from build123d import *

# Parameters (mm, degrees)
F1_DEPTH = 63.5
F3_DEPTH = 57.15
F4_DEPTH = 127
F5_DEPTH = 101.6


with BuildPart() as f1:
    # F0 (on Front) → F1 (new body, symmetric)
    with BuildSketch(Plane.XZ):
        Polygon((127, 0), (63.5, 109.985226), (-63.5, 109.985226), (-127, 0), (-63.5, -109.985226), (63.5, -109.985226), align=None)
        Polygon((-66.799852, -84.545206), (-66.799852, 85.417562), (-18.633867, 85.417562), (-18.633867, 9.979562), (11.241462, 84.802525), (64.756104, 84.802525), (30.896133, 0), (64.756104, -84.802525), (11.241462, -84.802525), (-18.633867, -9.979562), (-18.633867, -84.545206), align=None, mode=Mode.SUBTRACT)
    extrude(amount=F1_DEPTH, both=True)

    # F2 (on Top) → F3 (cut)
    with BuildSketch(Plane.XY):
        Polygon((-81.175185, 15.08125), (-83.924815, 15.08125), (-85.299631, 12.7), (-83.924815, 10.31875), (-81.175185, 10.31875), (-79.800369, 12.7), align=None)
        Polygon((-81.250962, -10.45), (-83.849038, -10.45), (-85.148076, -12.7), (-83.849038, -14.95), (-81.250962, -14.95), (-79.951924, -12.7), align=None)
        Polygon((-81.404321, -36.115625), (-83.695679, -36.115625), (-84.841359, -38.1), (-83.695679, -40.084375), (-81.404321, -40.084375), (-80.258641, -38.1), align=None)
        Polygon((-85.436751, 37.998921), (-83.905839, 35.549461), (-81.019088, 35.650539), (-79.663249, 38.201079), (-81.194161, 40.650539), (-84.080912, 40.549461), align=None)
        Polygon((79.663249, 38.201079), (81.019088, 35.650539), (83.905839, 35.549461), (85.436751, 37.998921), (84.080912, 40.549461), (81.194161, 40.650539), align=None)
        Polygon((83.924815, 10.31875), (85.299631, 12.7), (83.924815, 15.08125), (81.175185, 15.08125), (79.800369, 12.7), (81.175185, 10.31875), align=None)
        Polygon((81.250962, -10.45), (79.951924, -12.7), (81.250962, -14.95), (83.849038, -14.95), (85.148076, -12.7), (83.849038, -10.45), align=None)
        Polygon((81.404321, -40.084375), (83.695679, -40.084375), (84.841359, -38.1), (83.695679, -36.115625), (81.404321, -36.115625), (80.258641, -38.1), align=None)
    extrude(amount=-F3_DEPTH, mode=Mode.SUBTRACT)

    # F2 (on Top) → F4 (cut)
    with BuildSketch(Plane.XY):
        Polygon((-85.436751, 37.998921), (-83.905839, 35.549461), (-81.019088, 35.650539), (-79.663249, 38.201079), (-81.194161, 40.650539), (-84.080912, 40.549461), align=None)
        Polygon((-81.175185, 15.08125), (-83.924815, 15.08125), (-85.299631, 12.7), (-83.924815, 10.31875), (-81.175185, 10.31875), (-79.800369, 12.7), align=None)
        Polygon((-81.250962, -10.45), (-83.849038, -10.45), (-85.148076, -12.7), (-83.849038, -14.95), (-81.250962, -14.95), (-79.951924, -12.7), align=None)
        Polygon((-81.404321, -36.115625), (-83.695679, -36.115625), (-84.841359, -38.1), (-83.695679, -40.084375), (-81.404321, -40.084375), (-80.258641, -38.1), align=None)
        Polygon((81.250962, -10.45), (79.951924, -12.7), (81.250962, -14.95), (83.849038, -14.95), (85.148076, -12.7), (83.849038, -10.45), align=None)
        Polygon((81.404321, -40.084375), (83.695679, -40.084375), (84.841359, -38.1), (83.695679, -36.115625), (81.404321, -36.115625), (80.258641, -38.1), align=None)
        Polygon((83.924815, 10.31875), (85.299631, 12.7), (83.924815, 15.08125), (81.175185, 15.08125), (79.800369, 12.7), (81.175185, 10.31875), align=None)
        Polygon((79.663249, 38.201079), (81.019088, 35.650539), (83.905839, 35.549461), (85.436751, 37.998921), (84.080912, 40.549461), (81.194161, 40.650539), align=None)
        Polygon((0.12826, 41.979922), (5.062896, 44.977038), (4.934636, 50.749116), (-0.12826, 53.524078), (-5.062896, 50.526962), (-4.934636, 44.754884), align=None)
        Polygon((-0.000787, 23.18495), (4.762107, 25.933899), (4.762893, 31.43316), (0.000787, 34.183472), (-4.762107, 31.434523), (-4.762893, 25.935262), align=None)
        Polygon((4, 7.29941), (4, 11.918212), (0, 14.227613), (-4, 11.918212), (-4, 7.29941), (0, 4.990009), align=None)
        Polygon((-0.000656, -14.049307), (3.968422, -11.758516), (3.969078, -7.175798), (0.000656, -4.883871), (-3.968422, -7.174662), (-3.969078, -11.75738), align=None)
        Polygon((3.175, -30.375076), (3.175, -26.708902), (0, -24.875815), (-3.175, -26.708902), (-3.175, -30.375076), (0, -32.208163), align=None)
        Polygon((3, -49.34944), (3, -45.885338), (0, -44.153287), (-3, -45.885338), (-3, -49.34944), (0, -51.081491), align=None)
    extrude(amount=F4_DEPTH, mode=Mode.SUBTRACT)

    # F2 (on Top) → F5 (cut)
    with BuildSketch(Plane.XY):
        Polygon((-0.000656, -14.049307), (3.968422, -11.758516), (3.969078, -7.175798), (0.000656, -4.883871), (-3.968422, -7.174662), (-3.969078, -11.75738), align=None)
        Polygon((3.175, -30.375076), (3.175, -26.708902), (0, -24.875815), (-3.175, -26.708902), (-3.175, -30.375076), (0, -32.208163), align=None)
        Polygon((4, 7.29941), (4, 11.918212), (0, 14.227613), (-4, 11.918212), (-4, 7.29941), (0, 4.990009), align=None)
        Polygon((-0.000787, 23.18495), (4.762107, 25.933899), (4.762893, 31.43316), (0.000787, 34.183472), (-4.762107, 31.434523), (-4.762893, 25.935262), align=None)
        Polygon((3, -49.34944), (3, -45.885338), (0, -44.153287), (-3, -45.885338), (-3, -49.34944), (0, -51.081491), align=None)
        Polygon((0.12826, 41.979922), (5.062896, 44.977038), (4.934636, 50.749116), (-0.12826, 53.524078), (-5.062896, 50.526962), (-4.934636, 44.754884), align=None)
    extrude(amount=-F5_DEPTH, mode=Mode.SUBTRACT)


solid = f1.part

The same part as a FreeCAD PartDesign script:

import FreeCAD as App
import Part
import Sketcher

V = App.Vector
Q = App.Units.Quantity

doc = App.newDocument("Part")
params = doc.addObject("Spreadsheet::Sheet", "Params")
for row, (alias, value) in enumerate([
    ("sketch1_width", "5 in"),
    ("sketch1_length", "5 in"),
    ("sketch1_height", "2.97 in"),
    ("pad1_length", "5 in"),
    ("pocket1_length", "2.25 in"),
    ("pocket2_length", "5 in"),
    ("pocket3_length", "4 in"),
], start=1):
    params.set(f"A{row}", alias)
    params.set(f"B{row}", "=" + value)
    params.setAlias(f"B{row}", alias)

body = doc.addObject("PartDesign::Body", "Body")

sketch1 = body.newObject("Sketcher::SketchObject", "Sketch")
sketch1.AttachmentSupport = (doc.getObject("XZ_Plane"), [""])
sketch1.MapMode = "FlatFace"
sketch1.addGeometry([
    Part.LineSegment(V(127, 0, 0), V(64, 110, 0)),
    Part.LineSegment(V(64, 110, 0), V(-64, 110, 0)),
    Part.LineSegment(V(-64, 110, 0), V(-127, 0, 0)),
    Part.LineSegment(V(-127, 0, 0), V(-64, -110, 0)),
    Part.LineSegment(V(-64, -110, 0), V(64, -110, 0)),
    Part.LineSegment(V(64, -110, 0), V(127, 0, 0)),
    Part.LineSegment(V(-19, -85, 0), V(-67, -85, 0)),
    Part.LineSegment(V(-67, -85, 0), V(-67, 85, 0)),
    Part.LineSegment(V(-67, 85, 0), V(-19, 85, 0)),
    Part.LineSegment(V(-19, 85, 0), V(-19, 10, 0)),
    Part.LineSegment(V(-19, 10, 0), V(11, 85, 0)),
    Part.LineSegment(V(11, 85, 0), V(65, 85, 0)),
    Part.LineSegment(V(65, 85, 0), V(31, 0, 0)),
    Part.LineSegment(V(31, 0, 0), V(65, -85, 0)),
    Part.LineSegment(V(65, -85, 0), V(11, -85, 0)),
    Part.LineSegment(V(11, -85, 0), V(-19, -10, 0)),
    Part.LineSegment(V(-19, -10, 0), V(-19, -85, 0)),
], False)
sketch1.addConstraint([
    Sketcher.Constraint("Coincident", 0, 2, 1, 1),
    Sketcher.Constraint("Coincident", 1, 2, 2, 1),
    Sketcher.Constraint("Coincident", 2, 2, 3, 1),
    Sketcher.Constraint("Coincident", 3, 2, 4, 1),
    Sketcher.Constraint("Coincident", 4, 2, 5, 1),
    Sketcher.Constraint("Coincident", 5, 2, 0, 1),
    Sketcher.Constraint("Coincident", 6, 2, 7, 1),
    Sketcher.Constraint("Coincident", 7, 2, 8, 1),
    Sketcher.Constraint("Coincident", 8, 2, 9, 1),
    Sketcher.Constraint("Coincident", 9, 2, 10, 1),
    Sketcher.Constraint("Coincident", 10, 2, 11, 1),
    Sketcher.Constraint("Coincident", 11, 2, 12, 1),
    Sketcher.Constraint("Coincident", 12, 2, 13, 1),
    Sketcher.Constraint("Coincident", 13, 2, 14, 1),
    Sketcher.Constraint("Coincident", 14, 2, 15, 1),
    Sketcher.Constraint("Coincident", 15, 2, 16, 1),
    Sketcher.Constraint("Coincident", 16, 2, 6, 1),
    Sketcher.Constraint("Horizontal", 1),
    Sketcher.Constraint("Horizontal", 4),
    Sketcher.Constraint("Horizontal", 6),
    Sketcher.Constraint("Vertical", 7),
    Sketcher.Constraint("Horizontal", 8),
    Sketcher.Constraint("Vertical", 9),
    Sketcher.Constraint("Horizontal", 11),
    Sketcher.Constraint("Horizontal", 14),
    Sketcher.Constraint("Vertical", 16),
    Sketcher.Constraint("Symmetric", 0, 2, 3, 2, -1, 1),
    Sketcher.Constraint("Symmetric", 2, 2, 5, 2, -1, 1),
    Sketcher.Constraint("Symmetric", 11, 2, 13, 2, -1),
    Sketcher.Constraint("Symmetric", 9, 2, 15, 2, -1),
    Sketcher.Constraint("PointOnObject", 2, 2, -1),
    Sketcher.Constraint("PointOnObject", 12, 2, -1),
    Sketcher.Constraint("Parallel", 2, 5),
    Sketcher.Constraint("Parallel", 10, 12),
    Sketcher.Constraint("Parallel", 13, 15),
    Sketcher.Constraint("Vertical", 1, 2, 3, 2),
    Sketcher.Constraint("DistanceX", 1, 2, 1, 1, Q("5 in")),
    Sketcher.Constraint("Distance", 0, Q("5 in")),
    Sketcher.Constraint("DistanceX", 2, 2, -1, 1, Q("5 in")),
    Sketcher.Constraint("DistanceY", 9, 2, 9, 1, Q("2.97 in")),
    Sketcher.Constraint("DistanceX", 9, 2, 12, 2, Q("1.95 in")),
    Sketcher.Constraint("DistanceX", 11, 1, 11, 2, 53.514642),
    Sketcher.Constraint("DistanceY", 10, 2, 0, 2, 25.182701),
    Sketcher.Constraint("Distance", 10, 80.566811),
    Sketcher.Constraint("DistanceX", 6, 2, 6, 1, 48.165985),
    Sketcher.Constraint("DistanceY", 7, 1, 7, 2, 169.962768),
    Sketcher.Constraint("DistanceX", 6, 2, -1, 1, 66.799852),
])
sketch1.setExpression("Constraints[36]", "Params.sketch1_width")
sketch1.setExpression("Constraints[37]", "Params.sketch1_length")
sketch1.setExpression("Constraints[39]", "Params.sketch1_height")
pad1 = body.newObject("PartDesign::Pad", "Pad")
pad1.Profile = sketch1
pad1.setExpression("Length", "Params.pad1_length")
pad1.Midplane = True

sketch2 = body.newObject("Sketcher::SketchObject", "Sketch001")
sketch2.AttachmentSupport = (doc.getObject("XY_Plane"), [""])
sketch2.MapMode = "FlatFace"
sketch2.addGeometry([
    Part.LineSegment(V(-81.2, 15.1, 0), V(-83.9, 15.1, 0)),
    Part.LineSegment(V(-83.9, 15.1, 0), V(-85.3, 12.7, 0)),
    Part.LineSegment(V(-85.3, 12.7, 0), V(-83.9, 10.3, 0)),
    Part.LineSegment(V(-83.9, 10.3, 0), V(-81.2, 10.3, 0)),
    Part.LineSegment(V(-81.2, 10.3, 0), V(-79.8, 12.7, 0)),
    Part.LineSegment(V(-79.8, 12.7, 0), V(-81.2, 15.1, 0)),
    Part.LineSegment(V(-81.3, -10.4, 0), V(-83.8, -10.4, 0)),
    Part.LineSegment(V(-83.8, -10.4, 0), V(-85.1, -12.7, 0)),
    Part.LineSegment(V(-85.1, -12.7, 0), V(-83.8, -14.9, 0)),
    Part.LineSegment(V(-83.8, -14.9, 0), V(-81.3, -14.9, 0)),
    Part.LineSegment(V(-81.3, -14.9, 0), V(-80, -12.7, 0)),
    Part.LineSegment(V(-80, -12.7, 0), V(-81.3, -10.4, 0)),
    Part.LineSegment(V(-81.4, -36.1, 0), V(-83.7, -36.1, 0)),
    Part.LineSegment(V(-83.7, -36.1, 0), V(-84.8, -38.1, 0)),
    Part.LineSegment(V(-84.8, -38.1, 0), V(-83.7, -40.1, 0)),
    Part.LineSegment(V(-83.7, -40.1, 0), V(-81.4, -40.1, 0)),
    Part.LineSegment(V(-81.4, -40.1, 0), V(-80.3, -38.1, 0)),
    Part.LineSegment(V(-80.3, -38.1, 0), V(-81.4, -36.1, 0)),
    Part.LineSegment(V(-85.4, 38, 0), V(-83.9, 35.5, 0)),
    Part.LineSegment(V(-83.9, 35.5, 0), V(-81, 35.7, 0)),
    Part.LineSegment(V(-81, 35.7, 0), V(-79.7, 38.2, 0)),
    Part.LineSegment(V(-79.7, 38.2, 0), V(-81.2, 40.7, 0)),
    Part.LineSegment(V(-81.2, 40.7, 0), V(-84.1, 40.5, 0)),
    Part.LineSegment(V(-84.1, 40.5, 0), V(-85.4, 38, 0)),
    Part.LineSegment(V(79.7, 38.2, 0), V(81, 35.7, 0)),
    Part.LineSegment(V(81, 35.7, 0), V(83.9, 35.5, 0)),
    Part.LineSegment(V(83.9, 35.5, 0), V(85.4, 38, 0)),
    Part.LineSegment(V(85.4, 38, 0), V(84.1, 40.5, 0)),
    Part.LineSegment(V(84.1, 40.5, 0), V(81.2, 40.7, 0)),
    Part.LineSegment(V(81.2, 40.7, 0), V(79.7, 38.2, 0)),
    Part.LineSegment(V(83.9, 10.3, 0), V(85.3, 12.7, 0)),
    Part.LineSegment(V(85.3, 12.7, 0), V(83.9, 15.1, 0)),
    Part.LineSegment(V(83.9, 15.1, 0), V(81.2, 15.1, 0)),
    Part.LineSegment(V(81.2, 15.1, 0), V(79.8, 12.7, 0)),
    Part.LineSegment(V(79.8, 12.7, 0), V(81.2, 10.3, 0)),
    Part.LineSegment(V(81.2, 10.3, 0), V(83.9, 10.3, 0)),
    Part.LineSegment(V(81.3, -10.4, 0), V(80, -12.7, 0)),
    Part.LineSegment(V(80, -12.7, 0), V(81.3, -14.9, 0)),
    Part.LineSegment(V(81.3, -14.9, 0), V(83.8, -14.9, 0)),
    Part.LineSegment(V(83.8, -14.9, 0), V(85.1, -12.7, 0)),
    Part.LineSegment(V(85.1, -12.7, 0), V(83.8, -10.4, 0)),
    Part.LineSegment(V(83.8, -10.4, 0), V(81.3, -10.4, 0)),
    Part.LineSegment(V(81.4, -40.1, 0), V(83.7, -40.1, 0)),
    Part.LineSegment(V(83.7, -40.1, 0), V(84.8, -38.1, 0)),
    Part.LineSegment(V(84.8, -38.1, 0), V(83.7, -36.1, 0)),
    Part.LineSegment(V(83.7, -36.1, 0), V(81.4, -36.1, 0)),
    Part.LineSegment(V(81.4, -36.1, 0), V(80.3, -38.1, 0)),
    Part.LineSegment(V(80.3, -38.1, 0), V(81.4, -40.1, 0)),
], False)
sketch2.addConstraint([
    Sketcher.Constraint("Coincident", 0, 2, 1, 1),
    Sketcher.Constraint("Coincident", 1, 2, 2, 1),
    Sketcher.Constraint("Coincident", 2, 2, 3, 1),
    Sketcher.Constraint("Coincident", 3, 2, 4, 1),
    Sketcher.Constraint("Coincident", 4, 2, 5, 1),
    Sketcher.Constraint("Coincident", 5, 2, 0, 1),
    Sketcher.Constraint("Coincident", 6, 2, 7, 1),
    Sketcher.Constraint("Coincident", 7, 2, 8, 1),
    Sketcher.Constraint("Coincident", 8, 2, 9, 1),
    Sketcher.Constraint("Coincident", 9, 2, 10, 1),
    Sketcher.Constraint("Coincident", 10, 2, 11, 1),
    Sketcher.Constraint("Coincident", 11, 2, 6, 1),
    Sketcher.Constraint("Coincident", 12, 2, 13, 1),
    Sketcher.Constraint("Coincident", 13, 2, 14, 1),
    Sketcher.Constraint("Coincident", 14, 2, 15, 1),
    Sketcher.Constraint("Coincident", 15, 2, 16, 1),
    Sketcher.Constraint("Coincident", 16, 2, 17, 1),
    Sketcher.Constraint("Coincident", 17, 2, 12, 1),
    Sketcher.Constraint("Coincident", 18, 2, 19, 1),
    Sketcher.Constraint("Coincident", 19, 2, 20, 1),
    Sketcher.Constraint("Coincident", 20, 2, 21, 1),
    Sketcher.Constraint("Coincident", 21, 2, 22, 1),
    Sketcher.Constraint("Coincident", 22, 2, 23, 1),
    Sketcher.Constraint("Coincident", 23, 2, 18, 1),
    Sketcher.Constraint("Coincident", 24, 2, 25, 1),
    Sketcher.Constraint("Coincident", 25, 2, 26, 1),
    Sketcher.Constraint("Coincident", 26, 2, 27, 1),
    Sketcher.Constraint("Coincident", 27, 2, 28, 1),
    Sketcher.Constraint("Coincident", 28, 2, 29, 1),
    Sketcher.Constraint("Coincident", 29, 2, 24, 1),
    Sketcher.Constraint("Coincident", 30, 2, 31, 1),
    Sketcher.Constraint("Coincident", 31, 2, 32, 1),
    Sketcher.Constraint("Coincident", 32, 2, 33, 1),
    Sketcher.Constraint("Coincident", 33, 2, 34, 1),
    Sketcher.Constraint("Coincident", 34, 2, 35, 1),
    Sketcher.Constraint("Coincident", 35, 2, 30, 1),
    Sketcher.Constraint("Coincident", 36, 2, 37, 1),
    Sketcher.Constraint("Coincident", 37, 2, 38, 1),
    Sketcher.Constraint("Coincident", 38, 2, 39, 1),
    Sketcher.Constraint("Coincident", 39, 2, 40, 1),
    Sketcher.Constraint("Coincident", 40, 2, 41, 1),
    Sketcher.Constraint("Coincident", 41, 2, 36, 1),
    Sketcher.Constraint("Coincident", 42, 2, 43, 1),
    Sketcher.Constraint("Coincident", 43, 2, 44, 1),
    Sketcher.Constraint("Coincident", 44, 2, 45, 1),
    Sketcher.Constraint("Coincident", 45, 2, 46, 1),
    Sketcher.Constraint("Coincident", 46, 2, 47, 1),
    Sketcher.Constraint("Coincident", 47, 2, 42, 1),
    Sketcher.Constraint("Horizontal", 0),
    Sketcher.Constraint("Horizontal", 3),
    Sketcher.Constraint("Horizontal", 6),
    Sketcher.Constraint("Horizontal", 9),
    Sketcher.Constraint("Horizontal", 12),
    Sketcher.Constraint("Horizontal", 15),
    Sketcher.Constraint("Horizontal", 32),
    Sketcher.Constraint("Horizontal", 35),
    Sketcher.Constraint("Horizontal", 38),
    Sketcher.Constraint("Horizontal", 41),
    Sketcher.Constraint("Horizontal", 42),
    Sketcher.Constraint("Horizontal", 45),
    Sketcher.Constraint("Symmetric", 19, 2, 24, 2, -2),
    Sketcher.Constraint("Symmetric", 18, 2, 25, 2, -2),
    Sketcher.Constraint("Symmetric", 23, 2, 26, 2, -2),
    Sketcher.Constraint("Symmetric", 22, 2, 27, 2, -2),
    Sketcher.Constraint("Symmetric", 21, 2, 28, 2, -2),
    Sketcher.Constraint("Symmetric", 20, 2, 29, 2, -2),
    Sketcher.Constraint("Symmetric", 1, 2, 30, 2, -2),
    Sketcher.Constraint("Symmetric", 0, 2, 31, 2, -2),
    Sketcher.Constraint("Symmetric", 4, 2, 33, 2, -2),
    Sketcher.Constraint("Symmetric", 3, 2, 34, 2, -2),
    Sketcher.Constraint("Symmetric", 10, 2, 36, 2, -2),
    Sketcher.Constraint("Symmetric", 9, 2, 37, 2, -2),
    Sketcher.Constraint("Symmetric", 7, 2, 39, 2, -2),
    Sketcher.Constraint("Symmetric", 6, 2, 40, 2, -2),
    Sketcher.Constraint("Symmetric", 14, 2, 42, 2, -2),
    Sketcher.Constraint("Symmetric", 13, 2, 43, 2, -2),
    Sketcher.Constraint("Symmetric", 12, 2, 44, 2, -2),
    Sketcher.Constraint("Symmetric", 16, 2, 46, 2, -2),
    Sketcher.Constraint("Parallel", 1, 4),
    Sketcher.Constraint("Parallel", 2, 5),
    Sketcher.Constraint("Parallel", 4, 7),
    Sketcher.Constraint("Parallel", 5, 8),
    Sketcher.Constraint("Parallel", 7, 10),
    Sketcher.Constraint("Parallel", 8, 11),
    Sketcher.Constraint("Parallel", 10, 13),
    Sketcher.Constraint("Parallel", 11, 14),
    Sketcher.Constraint("Parallel", 13, 16),
    Sketcher.Constraint("Parallel", 14, 17),
    Sketcher.Constraint("Parallel", 18, 21),
    Sketcher.Constraint("Parallel", 19, 22),
    Sketcher.Constraint("Parallel", 20, 23),
    Sketcher.Constraint("Parallel", 16, 30),
    Sketcher.Constraint("Parallel", 17, 31),
    Sketcher.Constraint("Parallel", 30, 33),
    Sketcher.Constraint("Parallel", 33, 36),
    Sketcher.Constraint("Parallel", 36, 39),
    Sketcher.Constraint("Parallel", 43, 46),
    Sketcher.Constraint("Parallel", 44, 47),
    Sketcher.Constraint("Horizontal", 1, 2, 4, 2),
    Sketcher.Constraint("Horizontal", 7, 2, 10, 2),
    Sketcher.Constraint("Horizontal", 13, 2, 16, 2),
    Sketcher.Constraint("Vertical", 0, 2, 2, 2),
    Sketcher.Constraint("Vertical", 6, 2, 8, 2),
    Sketcher.Constraint("Vertical", 12, 2, 14, 2),
    Sketcher.Constraint("Equal", 18, 19),
    Sketcher.Constraint("Equal", 19, 20),
    Sketcher.Constraint("Equal", 20, 21),
    Sketcher.Constraint("Angle", 1, Q("-120.000012 deg")),
    Sketcher.Constraint("DistanceY", 7, 2, 1, 2, Q("1 in")),
    Sketcher.Constraint("DistanceY", 13, 2, 7, 2, Q("1 in")),
    Sketcher.Constraint("DistanceY", -1, 1, 1, 2, Q("0.5 in")),
    Sketcher.Constraint("DistanceX", 21, 2, 25, 2, Q("6.5 in")),
    Sketcher.Constraint("DistanceY", -1, 1, 0, 2, Q("0.59375 in")),
    Sketcher.Constraint("DistanceY", 12, 2, -1, 1, Q("1.421875 in")),
    Sketcher.Constraint("DistanceX", 0, 2, 0, 1, 2.74963),
    Sketcher.Constraint("DistanceX", 12, 2, 12, 1, 2.291358),
    Sketcher.Constraint("DistanceY", 6, 2, -1, 1, 10.45),
    Sketcher.Constraint("DistanceY", 19, 2, 21, 2, 5.0),
    Sketcher.Constraint("Distance", 18, 2.88852),
    Sketcher.Constraint("DistanceX", 6, 2, 6, 1, 2.598076),
    Sketcher.Constraint("DistanceX", 1, 2, -1, 1, 85.299631),
    Sketcher.Constraint("DistanceX", 9, 2, -1, 1, 81.250962),
    Sketcher.Constraint("DistanceX", 12, 2, -1, 1, 83.695679),
    Sketcher.Constraint("DistanceX", 18, 2, -1, 1, 83.905839),
    Sketcher.Constraint("DistanceY", -1, 1, 18, 2, 35.549461),
    Sketcher.Constraint("DistanceY", -1, 1, 19, 2, 35.650539),
])
pocket1 = body.newObject("PartDesign::Pocket", "Pocket")
pocket1.Profile = sketch2
pocket1.setExpression("Length", "Params.pocket1_length")

sketch3 = body.newObject("Sketcher::SketchObject", "Sketch002")
sketch3.AttachmentSupport = (doc.getObject("XY_Plane"), [""])
sketch3.MapMode = "FlatFace"
sketch3.addGeometry([
    Part.LineSegment(V(-85.4, 38, 0), V(-83.9, 35.5, 0)),
    Part.LineSegment(V(-83.9, 35.5, 0), V(-81, 35.7, 0)),
    Part.LineSegment(V(-81, 35.7, 0), V(-79.7, 38.2, 0)),
    Part.LineSegment(V(-79.7, 38.2, 0), V(-81.2, 40.7, 0)),
    Part.LineSegment(V(-81.2, 40.7, 0), V(-84.1, 40.5, 0)),
    Part.LineSegment(V(-84.1, 40.5, 0), V(-85.4, 38, 0)),
    Part.LineSegment(V(-81.2, 15.1, 0), V(-83.9, 15.1, 0)),
    Part.LineSegment(V(-83.9, 15.1, 0), V(-85.3, 12.7, 0)),
    Part.LineSegment(V(-85.3, 12.7, 0), V(-83.9, 10.3, 0)),
    Part.LineSegment(V(-83.9, 10.3, 0), V(-81.2, 10.3, 0)),
    Part.LineSegment(V(-81.2, 10.3, 0), V(-79.8, 12.7, 0)),
    Part.LineSegment(V(-79.8, 12.7, 0), V(-81.2, 15.1, 0)),
    Part.LineSegment(V(-81.3, -10.4, 0), V(-83.8, -10.4, 0)),
    Part.LineSegment(V(-83.8, -10.4, 0), V(-85.1, -12.7, 0)),
    Part.LineSegment(V(-85.1, -12.7, 0), V(-83.8, -14.9, 0)),
    Part.LineSegment(V(-83.8, -14.9, 0), V(-81.3, -14.9, 0)),
    Part.LineSegment(V(-81.3, -14.9, 0), V(-80, -12.7, 0)),
    Part.LineSegment(V(-80, -12.7, 0), V(-81.3, -10.4, 0)),
    Part.LineSegment(V(-81.4, -36.1, 0), V(-83.7, -36.1, 0)),
    Part.LineSegment(V(-83.7, -36.1, 0), V(-84.8, -38.1, 0)),
    Part.LineSegment(V(-84.8, -38.1, 0), V(-83.7, -40.1, 0)),
    Part.LineSegment(V(-83.7, -40.1, 0), V(-81.4, -40.1, 0)),
    Part.LineSegment(V(-81.4, -40.1, 0), V(-80.3, -38.1, 0)),
    Part.LineSegment(V(-80.3, -38.1, 0), V(-81.4, -36.1, 0)),
    Part.LineSegment(V(81.3, -10.4, 0), V(80, -12.7, 0)),
    Part.LineSegment(V(80, -12.7, 0), V(81.3, -14.9, 0)),
    Part.LineSegment(V(81.3, -14.9, 0), V(83.8, -14.9, 0)),
    Part.LineSegment(V(83.8, -14.9, 0), V(85.1, -12.7, 0)),
    Part.LineSegment(V(85.1, -12.7, 0), V(83.8, -10.4, 0)),
    Part.LineSegment(V(83.8, -10.4, 0), V(81.3, -10.4, 0)),
    Part.LineSegment(V(81.4, -40.1, 0), V(83.7, -40.1, 0)),
    Part.LineSegment(V(83.7, -40.1, 0), V(84.8, -38.1, 0)),
    Part.LineSegment(V(84.8, -38.1, 0), V(83.7, -36.1, 0)),
    Part.LineSegment(V(83.7, -36.1, 0), V(81.4, -36.1, 0)),
    Part.LineSegment(V(81.4, -36.1, 0), V(80.3, -38.1, 0)),
    Part.LineSegment(V(80.3, -38.1, 0), V(81.4, -40.1, 0)),
    Part.LineSegment(V(83.9, 10.3, 0), V(85.3, 12.7, 0)),
    Part.LineSegment(V(85.3, 12.7, 0), V(83.9, 15.1, 0)),
    Part.LineSegment(V(83.9, 15.1, 0), V(81.2, 15.1, 0)),
    Part.LineSegment(V(81.2, 15.1, 0), V(79.8, 12.7, 0)),
    Part.LineSegment(V(79.8, 12.7, 0), V(81.2, 10.3, 0)),
    Part.LineSegment(V(81.2, 10.3, 0), V(83.9, 10.3, 0)),
    Part.LineSegment(V(79.7, 38.2, 0), V(81, 35.7, 0)),
    Part.LineSegment(V(81, 35.7, 0), V(83.9, 35.5, 0)),
    Part.LineSegment(V(83.9, 35.5, 0), V(85.4, 38, 0)),
    Part.LineSegment(V(85.4, 38, 0), V(84.1, 40.5, 0)),
    Part.LineSegment(V(84.1, 40.5, 0), V(81.2, 40.7, 0)),
    Part.LineSegment(V(81.2, 40.7, 0), V(79.7, 38.2, 0)),
    Part.LineSegment(V(0.1, 42, 0), V(5.1, 45, 0)),
    Part.LineSegment(V(5.1, 45, 0), V(4.9, 50.7, 0)),
    Part.LineSegment(V(4.9, 50.7, 0), V(-0.1, 53.5, 0)),
    Part.LineSegment(V(-0.1, 53.5, 0), V(-5.1, 50.5, 0)),
    Part.LineSegment(V(-5.1, 50.5, 0), V(-4.9, 44.8, 0)),
    Part.LineSegment(V(-4.9, 44.8, 0), V(0.1, 42, 0)),
    Part.LineSegment(V(0, 23.2, 0), V(4.8, 25.9, 0)),
    Part.LineSegment(V(4.8, 25.9, 0), V(4.8, 31.4, 0)),
    Part.LineSegment(V(4.8, 31.4, 0), V(0, 34.2, 0)),
    Part.LineSegment(V(0, 34.2, 0), V(-4.8, 31.4, 0)),
    Part.LineSegment(V(-4.8, 31.4, 0), V(-4.8, 25.9, 0)),
    Part.LineSegment(V(-4.8, 25.9, 0), V(0, 23.2, 0)),
    Part.LineSegment(V(4, 7.3, 0), V(4, 11.9, 0)),
    Part.LineSegment(V(4, 11.9, 0), V(0, 14.2, 0)),
    Part.LineSegment(V(0, 14.2, 0), V(-4, 11.9, 0)),
    Part.LineSegment(V(-4, 11.9, 0), V(-4, 7.3, 0)),
    Part.LineSegment(V(-4, 7.3, 0), V(0, 5, 0)),
    Part.LineSegment(V(0, 5, 0), V(4, 7.3, 0)),
    Part.LineSegment(V(0, -14, 0), V(4, -11.8, 0)),
    Part.LineSegment(V(4, -11.8, 0), V(4, -7.2, 0)),
    Part.LineSegment(V(4, -7.2, 0), V(0, -4.9, 0)),
    Part.LineSegment(V(0, -4.9, 0), V(-4, -7.2, 0)),
    Part.LineSegment(V(-4, -7.2, 0), V(-4, -11.8, 0)),
    Part.LineSegment(V(-4, -11.8, 0), V(0, -14, 0)),
    Part.LineSegment(V(3.2, -30.4, 0), V(3.2, -26.7, 0)),
    Part.LineSegment(V(3.2, -26.7, 0), V(0, -24.9, 0)),
    Part.LineSegment(V(0, -24.9, 0), V(-3.2, -26.7, 0)),
    Part.LineSegment(V(-3.2, -26.7, 0), V(-3.2, -30.4, 0)),
    Part.LineSegment(V(-3.2, -30.4, 0), V(0, -32.2, 0)),
    Part.LineSegment(V(0, -32.2, 0), V(3.2, -30.4, 0)),
    Part.LineSegment(V(3, -49.3, 0), V(3, -45.9, 0)),
    Part.LineSegment(V(3, -45.9, 0), V(0, -44.2, 0)),
    Part.LineSegment(V(0, -44.2, 0), V(-3, -45.9, 0)),
    Part.LineSegment(V(-3, -45.9, 0), V(-3, -49.3, 0)),
    Part.LineSegment(V(-3, -49.3, 0), V(0, -51.1, 0)),
    Part.LineSegment(V(0, -51.1, 0), V(3, -49.3, 0)),
], False)
sketch3.addConstraint([
    Sketcher.Constraint("Coincident", 0, 2, 1, 1),
    Sketcher.Constraint("Coincident", 1, 2, 2, 1),
    Sketcher.Constraint("Coincident", 2, 2, 3, 1),
    Sketcher.Constraint("Coincident", 3, 2, 4, 1),
    Sketcher.Constraint("Coincident", 4, 2, 5, 1),
    Sketcher.Constraint("Coincident", 5, 2, 0, 1),
    Sketcher.Constraint("Coincident", 6, 2, 7, 1),
    Sketcher.Constraint("Coincident", 7, 2, 8, 1),
    Sketcher.Constraint("Coincident", 8, 2, 9, 1),
    Sketcher.Constraint("Coincident", 9, 2, 10, 1),
    Sketcher.Constraint("Coincident", 10, 2, 11, 1),
    Sketcher.Constraint("Coincident", 11, 2, 6, 1),
    Sketcher.Constraint("Coincident", 12, 2, 13, 1),
    Sketcher.Constraint("Coincident", 13, 2, 14, 1),
    Sketcher.Constraint("Coincident", 14, 2, 15, 1),
    Sketcher.Constraint("Coincident", 15, 2, 16, 1),
    Sketcher.Constraint("Coincident", 16, 2, 17, 1),
    Sketcher.Constraint("Coincident", 17, 2, 12, 1),
    Sketcher.Constraint("Coincident", 18, 2, 19, 1),
    Sketcher.Constraint("Coincident", 19, 2, 20, 1),
    Sketcher.Constraint("Coincident", 20, 2, 21, 1),
    Sketcher.Constraint("Coincident", 21, 2, 22, 1),
    Sketcher.Constraint("Coincident", 22, 2, 23, 1),
    Sketcher.Constraint("Coincident", 23, 2, 18, 1),
    Sketcher.Constraint("Coincident", 24, 2, 25, 1),
    Sketcher.Constraint("Coincident", 25, 2, 26, 1),
    Sketcher.Constraint("Coincident", 26, 2, 27, 1),
    Sketcher.Constraint("Coincident", 27, 2, 28, 1),
    Sketcher.Constraint("Coincident", 28, 2, 29, 1),
    Sketcher.Constraint("Coincident", 29, 2, 24, 1),
    Sketcher.Constraint("Coincident", 30, 2, 31, 1),
    Sketcher.Constraint("Coincident", 31, 2, 32, 1),
    Sketcher.Constraint("Coincident", 32, 2, 33, 1),
    Sketcher.Constraint("Coincident", 33, 2, 34, 1),
    Sketcher.Constraint("Coincident", 34, 2, 35, 1),
    Sketcher.Constraint("Coincident", 35, 2, 30, 1),
    Sketcher.Constraint("Coincident", 36, 2, 37, 1),
    Sketcher.Constraint("Coincident", 37, 2, 38, 1),
    Sketcher.Constraint("Coincident", 38, 2, 39, 1),
    Sketcher.Constraint("Coincident", 39, 2, 40, 1),
    Sketcher.Constraint("Coincident", 40, 2, 41, 1),
    Sketcher.Constraint("Coincident", 41, 2, 36, 1),
    Sketcher.Constraint("Coincident", 42, 2, 43, 1),
    Sketcher.Constraint("Coincident", 43, 2, 44, 1),
    Sketcher.Constraint("Coincident", 44, 2, 45, 1),
    Sketcher.Constraint("Coincident", 45, 2, 46, 1),
    Sketcher.Constraint("Coincident", 46, 2, 47, 1),
    Sketcher.Constraint("Coincident", 47, 2, 42, 1),
    Sketcher.Constraint("Coincident", 48, 2, 49, 1),
    Sketcher.Constraint("Coincident", 49, 2, 50, 1),
    Sketcher.Constraint("Coincident", 50, 2, 51, 1),
    Sketcher.Constraint("Coincident", 51, 2, 52, 1),
    Sketcher.Constraint("Coincident", 52, 2, 53, 1),
    Sketcher.Constraint("Coincident", 53, 2, 48, 1),
    Sketcher.Constraint("Coincident", 54, 2, 55, 1),
    Sketcher.Constraint("Coincident", 55, 2, 56, 1),
    Sketcher.Constraint("Coincident", 56, 2, 57, 1),
    Sketcher.Constraint("Coincident", 57, 2, 58, 1),
    Sketcher.Constraint("Coincident", 58, 2, 59, 1),
    Sketcher.Constraint("Coincident", 59, 2, 54, 1),
    Sketcher.Constraint("Coincident", 60, 2, 61, 1),
    Sketcher.Constraint("Coincident", 61, 2, 62, 1),
    Sketcher.Constraint("Coincident", 62, 2, 63, 1),
    Sketcher.Constraint("Coincident", 63, 2, 64, 1),
    Sketcher.Constraint("Coincident", 64, 2, 65, 1),
    Sketcher.Constraint("Coincident", 65, 2, 60, 1),
    Sketcher.Constraint("Coincident", 66, 2, 67, 1),
    Sketcher.Constraint("Coincident", 67, 2, 68, 1),
    Sketcher.Constraint("Coincident", 68, 2, 69, 1),
    Sketcher.Constraint("Coincident", 69, 2, 70, 1),
    Sketcher.Constraint("Coincident", 70, 2, 71, 1),
    Sketcher.Constraint("Coincident", 71, 2, 66, 1),
    Sketcher.Constraint("Coincident", 72, 2, 73, 1),
    Sketcher.Constraint("Coincident", 73, 2, 74, 1),
    Sketcher.Constraint("Coincident", 74, 2, 75, 1),
    Sketcher.Constraint("Coincident", 75, 2, 76, 1),
    Sketcher.Constraint("Coincident", 76, 2, 77, 1),
    Sketcher.Constraint("Coincident", 77, 2, 72, 1),
    Sketcher.Constraint("Coincident", 78, 2, 79, 1),
    Sketcher.Constraint("Coincident", 79, 2, 80, 1),
    Sketcher.Constraint("Coincident", 80, 2, 81, 1),
    Sketcher.Constraint("Coincident", 81, 2, 82, 1),
    Sketcher.Constraint("Coincident", 82, 2, 83, 1),
    Sketcher.Constraint("Coincident", 83, 2, 78, 1),
    Sketcher.Constraint("Horizontal", 6),
    Sketcher.Constraint("Horizontal", 9),
    Sketcher.Constraint("Horizontal", 12),
    Sketcher.Constraint("Horizontal", 15),
    Sketcher.Constraint("Horizontal", 18),
    Sketcher.Constraint("Horizontal", 21),
    Sketcher.Constraint("Horizontal", 26),
    Sketcher.Constraint("Horizontal", 29),
    Sketcher.Constraint("Horizontal", 30),
    Sketcher.Constraint("Horizontal", 33),
    Sketcher.Constraint("Horizontal", 38),
    Sketcher.Constraint("Horizontal", 41),
    Sketcher.Constraint("Vertical", 60),
    Sketcher.Constraint("Vertical", 63),
    Sketcher.Constraint("Vertical", 72),
    Sketcher.Constraint("Vertical", 75),
    Sketcher.Constraint("Vertical", 78),
    Sketcher.Constraint("Vertical", 81),
    Sketcher.Constraint("Symmetric", 16, 2, 24, 2, -2),
    Sketcher.Constraint("Symmetric", 15, 2, 25, 2, -2),
    Sketcher.Constraint("Symmetric", 13, 2, 27, 2, -2),
    Sketcher.Constraint("Symmetric", 12, 2, 28, 2, -2),
    Sketcher.Constraint("Symmetric", 20, 2, 30, 2, -2),
    Sketcher.Constraint("Symmetric", 19, 2, 31, 2, -2),
    Sketcher.Constraint("Symmetric", 18, 2, 32, 2, -2),
    Sketcher.Constraint("Symmetric", 22, 2, 34, 2, -2),
    Sketcher.Constraint("Symmetric", 7, 2, 36, 2, -2),
    Sketcher.Constraint("Symmetric", 6, 2, 37, 2, -2),
    Sketcher.Constraint("Symmetric", 10, 2, 39, 2, -2),
    Sketcher.Constraint("Symmetric", 9, 2, 40, 2, -2),
    Sketcher.Constraint("Symmetric", 1, 2, 42, 2, -2),
    Sketcher.Constraint("Symmetric", 0, 2, 43, 2, -2),
    Sketcher.Constraint("Symmetric", 5, 2, 44, 2, -2),
    Sketcher.Constraint("Symmetric", 4, 2, 45, 2, -2),
    Sketcher.Constraint("Symmetric", 3, 2, 46, 2, -2),
    Sketcher.Constraint("Symmetric", 2, 2, 47, 2, -2),
    Sketcher.Constraint("Symmetric", 60, 2, 62, 2, -2),
    Sketcher.Constraint("Symmetric", 72, 2, 74, 2, -2),
    Sketcher.Constraint("Symmetric", 78, 2, 80, 2, -2),
    Sketcher.Constraint("PointOnObject", 61, 2, -2),
    Sketcher.Constraint("PointOnObject", 64, 2, -2),
    Sketcher.Constraint("PointOnObject", 73, 2, -2),
    Sketcher.Constraint("PointOnObject", 76, 2, -2),
    Sketcher.Constraint("PointOnObject", 79, 2, -2),
    Sketcher.Constraint("PointOnObject", 82, 2, -2),
    Sketcher.Constraint("Parallel", 0, 3),
    Sketcher.Constraint("Parallel", 1, 4),
    Sketcher.Constraint("Parallel", 2, 5),
    Sketcher.Constraint("Parallel", 7, 10),
    Sketcher.Constraint("Parallel", 8, 11),
    Sketcher.Constraint("Parallel", 10, 13),
    Sketcher.Constraint("Parallel", 11, 14),
    Sketcher.Constraint("Parallel", 13, 16),
    Sketcher.Constraint("Parallel", 14, 17),
    Sketcher.Constraint("Parallel", 16, 19),
    Sketcher.Constraint("Parallel", 17, 20),
    Sketcher.Constraint("Parallel", 19, 22),
    Sketcher.Constraint("Parallel", 20, 23),
    Sketcher.Constraint("Parallel", 22, 24),
    Sketcher.Constraint("Parallel", 23, 25),
    Sketcher.Constraint("Parallel", 24, 27),
    Sketcher.Constraint("Parallel", 31, 34),
    Sketcher.Constraint("Parallel", 32, 35),
    Sketcher.Constraint("Parallel", 34, 36),
    Sketcher.Constraint("Parallel", 36, 39),
    Sketcher.Constraint("Parallel", 48, 51),
    Sketcher.Constraint("Parallel", 49, 52),
    Sketcher.Constraint("Parallel", 50, 53),
    Sketcher.Constraint("Parallel", 54, 57),
    Sketcher.Constraint("Parallel", 55, 58),
    Sketcher.Constraint("Parallel", 56, 59),
    Sketcher.Constraint("Perpendicular", 39, 61),
    Sketcher.Constraint("Parallel", 61, 64),
    Sketcher.Constraint("Parallel", 62, 65),
    Sketcher.Constraint("Parallel", 57, 66),
    Sketcher.Constraint("Parallel", 58, 67),
    Sketcher.Constraint("Parallel", 59, 68),
    Sketcher.Constraint("Parallel", 66, 69),
    Sketcher.Constraint("Parallel", 67, 70),
    Sketcher.Constraint("Parallel", 68, 71),
    Sketcher.Constraint("Parallel", 64, 73),
    Sketcher.Constraint("Parallel", 73, 76),
    Sketcher.Constraint("Parallel", 74, 77),
    Sketcher.Constraint("Parallel", 76, 79),
    Sketcher.Constraint("Parallel", 79, 82),
    Sketcher.Constraint("Parallel", 80, 83),
    Sketcher.Constraint("Horizontal", 7, 2, 10, 2),
    Sketcher.Constraint("Horizontal", 13, 2, 16, 2),
    Sketcher.Constraint("Horizontal", 19, 2, 22, 2),
    Sketcher.Constraint("Vertical", 6, 2, 8, 2),
    Sketcher.Constraint("Vertical", 12, 2, 14, 2),
    Sketcher.Constraint("Vertical", 18, 2, 20, 2),
    Sketcher.Constraint("Equal", 0, 1),
    Sketcher.Constraint("Equal", 1, 2),
    Sketcher.Constraint("Equal", 2, 3),
    Sketcher.Constraint("Equal", 48, 49),
    Sketcher.Constraint("Equal", 49, 50),
    Sketcher.Constraint("Equal", 50, 51),
    Sketcher.Constraint("Equal", 54, 55),
    Sketcher.Constraint("Equal", 55, 56),
    Sketcher.Constraint("Equal", 56, 57),
    Sketcher.Constraint("Equal", 66, 67),
    Sketcher.Constraint("Equal", 67, 68),
    Sketcher.Constraint("Equal", 68, 69),
    Sketcher.Constraint("Angle", 7, Q("-120.000012 deg")),
    Sketcher.Constraint("DistanceY", -1, 1, 7, 2, Q("0.5 in")),
    Sketcher.Constraint("DistanceY", 13, 2, -1, 1, Q("0.5 in")),
    Sketcher.Constraint("DistanceY", 19, 2, -1, 1, Q("1.5 in")),
    Sketcher.Constraint("DistanceY", -1, 1, 6, 2, Q("0.59375 in")),
    Sketcher.Constraint("DistanceY", 18, 2, -1, 1, Q("1.421875 in")),
    Sketcher.Constraint("DistanceX", -1, 1, 72, 2, Q("0.125 in")),
    Sketcher.Constraint("Distance", 79, 3.464102),
    Sketcher.Constraint("DistanceX", 6, 2, 6, 1, 2.74963),
    Sketcher.Constraint("DistanceX", 18, 2, 18, 1, 2.291358),
    Sketcher.Constraint("DistanceY", 12, 2, -1, 1, 10.45),
    Sketcher.Constraint("DistanceY", -1, 1, 54, 2, 25.933899),
    Sketcher.Constraint("DistanceX", -1, 1, 60, 2, 4.0),
    Sketcher.Constraint("DistanceY", 67, 2, -1, 1, 7.175798),
    Sketcher.Constraint("DistanceY", 72, 2, -1, 1, 26.708902),
    Sketcher.Constraint("Distance", 0, 2.88852),
    Sketcher.Constraint("Distance", 54, 5.499262),
    Sketcher.Constraint("Distance", 67, 4.582718),
    Sketcher.Constraint("DistanceX", 12, 2, 12, 1, 2.598076),
    Sketcher.Constraint("DistanceY", 60, 1, 60, 2, 4.618802),
    Sketcher.Constraint("DistanceY", 72, 1, 72, 2, 3.666174),
    Sketcher.Constraint("DistanceY", 78, 1, 78, 2, 3.464102),
    Sketcher.Constraint("DistanceX", 0, 2, -1, 1, 83.905839),
    Sketcher.Constraint("DistanceY", -1, 1, 0, 2, 35.549461),
    Sketcher.Constraint("DistanceY", -1, 1, 1, 2, 35.650539),
    Sketcher.Constraint("DistanceX", 2, 2, -1, 1, 79.663249),
    Sketcher.Constraint("DistanceX", 3, 2, -1, 1, 81.194161),
    Sketcher.Constraint("DistanceX", 7, 2, -1, 1, 85.299631),
    Sketcher.Constraint("DistanceX", 15, 2, -1, 1, 81.250962),
    Sketcher.Constraint("DistanceX", 18, 2, -1, 1, 83.695679),
    Sketcher.Constraint("DistanceX", 50, 2, -1, 1, 0.12826),
    Sketcher.Constraint("DistanceY", -1, 1, 50, 2, 53.524078),
    Sketcher.Constraint("DistanceY", -1, 1, 51, 2, 50.526962),
    Sketcher.Constraint("DistanceX", -1, 1, 53, 2, 0.12826),
    Sketcher.Constraint("DistanceY", -1, 1, 59, 2, 23.18495),
    Sketcher.Constraint("DistanceY", -1, 1, 63, 2, 7.29941),
    Sketcher.Constraint("DistanceX", -1, 1, 66, 2, 3.968422),
    Sketcher.Constraint("DistanceX", -1, 1, 67, 2, 3.969078),
    Sketcher.Constraint("DistanceY", 68, 2, -1, 1, 4.883871),
    Sketcher.Constraint("DistanceY", 81, 2, -1, 1, 49.34944),
    Sketcher.Constraint("Distance", 48, 5.773503),
    Sketcher.Constraint("DistanceY", -1, 1, 48, 2, 44.977038),
    Sketcher.Constraint("DistanceX", -1, 1, 54, 2, 4.762107),
])
pocket2 = body.newObject("PartDesign::Pocket", "Pocket001")
pocket2.Profile = sketch3
pocket2.setExpression("Length", "Params.pocket2_length")
pocket2.Reversed = True

sketch4 = body.newObject("Sketcher::SketchObject", "Sketch003")
sketch4.AttachmentSupport = (doc.getObject("XY_Plane"), [""])
sketch4.MapMode = "FlatFace"
sketch4.addGeometry([
    Part.LineSegment(V(0, -14, 0), V(4, -11.8, 0)),
    Part.LineSegment(V(4, -11.8, 0), V(4, -7.2, 0)),
    Part.LineSegment(V(4, -7.2, 0), V(0, -4.9, 0)),
    Part.LineSegment(V(0, -4.9, 0), V(-4, -7.2, 0)),
    Part.LineSegment(V(-4, -7.2, 0), V(-4, -11.8, 0)),
    Part.LineSegment(V(-4, -11.8, 0), V(0, -14, 0)),
    Part.LineSegment(V(3.2, -30.4, 0), V(3.2, -26.7, 0)),
    Part.LineSegment(V(3.2, -26.7, 0), V(0, -24.9, 0)),
    Part.LineSegment(V(0, -24.9, 0), V(-3.2, -26.7, 0)),
    Part.LineSegment(V(-3.2, -26.7, 0), V(-3.2, -30.4, 0)),
    Part.LineSegment(V(-3.2, -30.4, 0), V(0, -32.2, 0)),
    Part.LineSegment(V(0, -32.2, 0), V(3.2, -30.4, 0)),
    Part.LineSegment(V(4, 7.3, 0), V(4, 11.9, 0)),
    Part.LineSegment(V(4, 11.9, 0), V(0, 14.2, 0)),
    Part.LineSegment(V(0, 14.2, 0), V(-4, 11.9, 0)),
    Part.LineSegment(V(-4, 11.9, 0), V(-4, 7.3, 0)),
    Part.LineSegment(V(-4, 7.3, 0), V(0, 5, 0)),
    Part.LineSegment(V(0, 5, 0), V(4, 7.3, 0)),
    Part.LineSegment(V(0, 23.2, 0), V(4.8, 25.9, 0)),
    Part.LineSegment(V(4.8, 25.9, 0), V(4.8, 31.4, 0)),
    Part.LineSegment(V(4.8, 31.4, 0), V(0, 34.2, 0)),
    Part.LineSegment(V(0, 34.2, 0), V(-4.8, 31.4, 0)),
    Part.LineSegment(V(-4.8, 31.4, 0), V(-4.8, 25.9, 0)),
    Part.LineSegment(V(-4.8, 25.9, 0), V(0, 23.2, 0)),
    Part.LineSegment(V(3, -49.3, 0), V(3, -45.9, 0)),
    Part.LineSegment(V(3, -45.9, 0), V(0, -44.2, 0)),
    Part.LineSegment(V(0, -44.2, 0), V(-3, -45.9, 0)),
    Part.LineSegment(V(-3, -45.9, 0), V(-3, -49.3, 0)),
    Part.LineSegment(V(-3, -49.3, 0), V(0, -51.1, 0)),
    Part.LineSegment(V(0, -51.1, 0), V(3, -49.3, 0)),
    Part.LineSegment(V(0.1, 42, 0), V(5.1, 45, 0)),
    Part.LineSegment(V(5.1, 45, 0), V(4.9, 50.7, 0)),
    Part.LineSegment(V(4.9, 50.7, 0), V(-0.1, 53.5, 0)),
    Part.LineSegment(V(-0.1, 53.5, 0), V(-5.1, 50.5, 0)),
    Part.LineSegment(V(-5.1, 50.5, 0), V(-4.9, 44.8, 0)),
    Part.LineSegment(V(-4.9, 44.8, 0), V(0.1, 42, 0)),
], False)
sketch4.addConstraint([
    Sketcher.Constraint("Coincident", 0, 2, 1, 1),
    Sketcher.Constraint("Coincident", 1, 2, 2, 1),
    Sketcher.Constraint("Coincident", 2, 2, 3, 1),
    Sketcher.Constraint("Coincident", 3, 2, 4, 1),
    Sketcher.Constraint("Coincident", 4, 2, 5, 1),
    Sketcher.Constraint("Coincident", 5, 2, 0, 1),
    Sketcher.Constraint("Coincident", 6, 2, 7, 1),
    Sketcher.Constraint("Coincident", 7, 2, 8, 1),
    Sketcher.Constraint("Coincident", 8, 2, 9, 1),
    Sketcher.Constraint("Coincident", 9, 2, 10, 1),
    Sketcher.Constraint("Coincident", 10, 2, 11, 1),
    Sketcher.Constraint("Coincident", 11, 2, 6, 1),
    Sketcher.Constraint("Coincident", 12, 2, 13, 1),
    Sketcher.Constraint("Coincident", 13, 2, 14, 1),
    Sketcher.Constraint("Coincident", 14, 2, 15, 1),
    Sketcher.Constraint("Coincident", 15, 2, 16, 1),
    Sketcher.Constraint("Coincident", 16, 2, 17, 1),
    Sketcher.Constraint("Coincident", 17, 2, 12, 1),
    Sketcher.Constraint("Coincident", 18, 2, 19, 1),
    Sketcher.Constraint("Coincident", 19, 2, 20, 1),
    Sketcher.Constraint("Coincident", 20, 2, 21, 1),
    Sketcher.Constraint("Coincident", 21, 2, 22, 1),
    Sketcher.Constraint("Coincident", 22, 2, 23, 1),
    Sketcher.Constraint("Coincident", 23, 2, 18, 1),
    Sketcher.Constraint("Coincident", 24, 2, 25, 1),
    Sketcher.Constraint("Coincident", 25, 2, 26, 1),
    Sketcher.Constraint("Coincident", 26, 2, 27, 1),
    Sketcher.Constraint("Coincident", 27, 2, 28, 1),
    Sketcher.Constraint("Coincident", 28, 2, 29, 1),
    Sketcher.Constraint("Coincident", 29, 2, 24, 1),
    Sketcher.Constraint("Coincident", 30, 2, 31, 1),
    Sketcher.Constraint("Coincident", 31, 2, 32, 1),
    Sketcher.Constraint("Coincident", 32, 2, 33, 1),
    Sketcher.Constraint("Coincident", 33, 2, 34, 1),
    Sketcher.Constraint("Coincident", 34, 2, 35, 1),
    Sketcher.Constraint("Coincident", 35, 2, 30, 1),
    Sketcher.Constraint("Vertical", 6),
    Sketcher.Constraint("Vertical", 9),
    Sketcher.Constraint("Vertical", 12),
    Sketcher.Constraint("Vertical", 15),
    Sketcher.Constraint("Vertical", 24),
    Sketcher.Constraint("Vertical", 27),
    Sketcher.Constraint("Symmetric", 6, 2, 8, 2, -2),
    Sketcher.Constraint("Symmetric", 12, 2, 14, 2, -2),
    Sketcher.Constraint("Symmetric", 24, 2, 26, 2, -2),
    Sketcher.Constraint("PointOnObject", 7, 2, -2),
    Sketcher.Constraint("PointOnObject", 10, 2, -2),
    Sketcher.Constraint("PointOnObject", 13, 2, -2),
    Sketcher.Constraint("PointOnObject", 16, 2, -2),
    Sketcher.Constraint("PointOnObject", 25, 2, -2),
    Sketcher.Constraint("PointOnObject", 28, 2, -2),
    Sketcher.Constraint("Parallel", 0, 3),
    Sketcher.Constraint("Parallel", 1, 4),
    Sketcher.Constraint("Parallel", 2, 5),
    Sketcher.Constraint("Parallel", 7, 10),
    Sketcher.Constraint("Parallel", 8, 11),
    Sketcher.Constraint("Parallel", 10, 13),
    Sketcher.Constraint("Parallel", 13, 16),
    Sketcher.Constraint("Parallel", 14, 17),
    Sketcher.Constraint("Parallel", 3, 18),
    Sketcher.Constraint("Parallel", 4, 19),
    Sketcher.Constraint("Parallel", 5, 20),
    Sketcher.Constraint("Parallel", 18, 21),
    Sketcher.Constraint("Parallel", 19, 22),
    Sketcher.Constraint("Parallel", 20, 23),
    Sketcher.Constraint("Parallel", 16, 25),
    Sketcher.Constraint("Parallel", 25, 28),
    Sketcher.Constraint("Parallel", 26, 29),
    Sketcher.Constraint("Parallel", 30, 33),
    Sketcher.Constraint("Parallel", 31, 34),
    Sketcher.Constraint("Parallel", 32, 35),
    Sketcher.Constraint("Equal", 0, 1),
    Sketcher.Constraint("Equal", 1, 2),
    Sketcher.Constraint("Equal", 2, 3),
    Sketcher.Constraint("Equal", 18, 19),
    Sketcher.Constraint("Equal", 19, 20),
    Sketcher.Constraint("Equal", 20, 21),
    Sketcher.Constraint("Equal", 30, 31),
    Sketcher.Constraint("Equal", 31, 32),
    Sketcher.Constraint("Equal", 32, 33),
    Sketcher.Constraint("Angle", 7, Q("150.000001 deg")),
    Sketcher.Constraint("DistanceX", 8, 2, 6, 2, Q("0.25 in")),
    Sketcher.Constraint("DistanceX", 3, 2, 1, 2, Q("0.3125 in")),
    Sketcher.Constraint("DistanceX", 21, 2, 19, 2, Q("0.375 in")),
    Sketcher.Constraint("Distance", 25, 3.464102),
    Sketcher.Constraint("DistanceY", 1, 2, -1, 1, 7.175798),
    Sketcher.Constraint("DistanceY", 6, 2, -1, 1, 26.708902),
    Sketcher.Constraint("DistanceX", -1, 1, 12, 2, 4.0),
    Sketcher.Constraint("DistanceY", -1, 1, 18, 2, 25.933899),
    Sketcher.Constraint("DistanceY", 7, 2, 0, 2, 13.117299),
    Sketcher.Constraint("DistanceY", 6, 1, 6, 2, 3.666174),
    Sketcher.Constraint("DistanceY", 12, 1, 12, 2, 4.618802),
    Sketcher.Constraint("DistanceY", 24, 1, 24, 2, 3.464102),
    Sketcher.Constraint("DistanceX", -1, 1, 0, 2, 3.968422),
    Sketcher.Constraint("DistanceX", -1, 1, 1, 2, 3.969078),
    Sketcher.Constraint("DistanceY", 2, 2, -1, 1, 4.883871),
    Sketcher.Constraint("DistanceY", -1, 1, 15, 2, 7.29941),
    Sketcher.Constraint("DistanceY", 27, 2, -1, 1, 49.34944),
    Sketcher.Constraint("DistanceX", 32, 2, -1, 1, 0.12826),
    Sketcher.Constraint("DistanceY", -1, 1, 32, 2, 53.524078),
    Sketcher.Constraint("DistanceY", -1, 1, 33, 2, 50.526962),
    Sketcher.Constraint("DistanceX", -1, 1, 35, 2, 0.12826),
    Sketcher.Constraint("DistanceX", 20, 2, 30, 2, 5.062109),
    Sketcher.Constraint("DistanceY", 18, 2, 30, 2, 19.043139),
    Sketcher.Constraint("DistanceX", 31, 2, 30, 2, 0.12826),
])
pocket3 = body.newObject("PartDesign::Pocket", "Pocket002")
pocket3.Profile = sketch4
pocket3.setExpression("Length", "Params.pocket3_length")

doc.recompute()
